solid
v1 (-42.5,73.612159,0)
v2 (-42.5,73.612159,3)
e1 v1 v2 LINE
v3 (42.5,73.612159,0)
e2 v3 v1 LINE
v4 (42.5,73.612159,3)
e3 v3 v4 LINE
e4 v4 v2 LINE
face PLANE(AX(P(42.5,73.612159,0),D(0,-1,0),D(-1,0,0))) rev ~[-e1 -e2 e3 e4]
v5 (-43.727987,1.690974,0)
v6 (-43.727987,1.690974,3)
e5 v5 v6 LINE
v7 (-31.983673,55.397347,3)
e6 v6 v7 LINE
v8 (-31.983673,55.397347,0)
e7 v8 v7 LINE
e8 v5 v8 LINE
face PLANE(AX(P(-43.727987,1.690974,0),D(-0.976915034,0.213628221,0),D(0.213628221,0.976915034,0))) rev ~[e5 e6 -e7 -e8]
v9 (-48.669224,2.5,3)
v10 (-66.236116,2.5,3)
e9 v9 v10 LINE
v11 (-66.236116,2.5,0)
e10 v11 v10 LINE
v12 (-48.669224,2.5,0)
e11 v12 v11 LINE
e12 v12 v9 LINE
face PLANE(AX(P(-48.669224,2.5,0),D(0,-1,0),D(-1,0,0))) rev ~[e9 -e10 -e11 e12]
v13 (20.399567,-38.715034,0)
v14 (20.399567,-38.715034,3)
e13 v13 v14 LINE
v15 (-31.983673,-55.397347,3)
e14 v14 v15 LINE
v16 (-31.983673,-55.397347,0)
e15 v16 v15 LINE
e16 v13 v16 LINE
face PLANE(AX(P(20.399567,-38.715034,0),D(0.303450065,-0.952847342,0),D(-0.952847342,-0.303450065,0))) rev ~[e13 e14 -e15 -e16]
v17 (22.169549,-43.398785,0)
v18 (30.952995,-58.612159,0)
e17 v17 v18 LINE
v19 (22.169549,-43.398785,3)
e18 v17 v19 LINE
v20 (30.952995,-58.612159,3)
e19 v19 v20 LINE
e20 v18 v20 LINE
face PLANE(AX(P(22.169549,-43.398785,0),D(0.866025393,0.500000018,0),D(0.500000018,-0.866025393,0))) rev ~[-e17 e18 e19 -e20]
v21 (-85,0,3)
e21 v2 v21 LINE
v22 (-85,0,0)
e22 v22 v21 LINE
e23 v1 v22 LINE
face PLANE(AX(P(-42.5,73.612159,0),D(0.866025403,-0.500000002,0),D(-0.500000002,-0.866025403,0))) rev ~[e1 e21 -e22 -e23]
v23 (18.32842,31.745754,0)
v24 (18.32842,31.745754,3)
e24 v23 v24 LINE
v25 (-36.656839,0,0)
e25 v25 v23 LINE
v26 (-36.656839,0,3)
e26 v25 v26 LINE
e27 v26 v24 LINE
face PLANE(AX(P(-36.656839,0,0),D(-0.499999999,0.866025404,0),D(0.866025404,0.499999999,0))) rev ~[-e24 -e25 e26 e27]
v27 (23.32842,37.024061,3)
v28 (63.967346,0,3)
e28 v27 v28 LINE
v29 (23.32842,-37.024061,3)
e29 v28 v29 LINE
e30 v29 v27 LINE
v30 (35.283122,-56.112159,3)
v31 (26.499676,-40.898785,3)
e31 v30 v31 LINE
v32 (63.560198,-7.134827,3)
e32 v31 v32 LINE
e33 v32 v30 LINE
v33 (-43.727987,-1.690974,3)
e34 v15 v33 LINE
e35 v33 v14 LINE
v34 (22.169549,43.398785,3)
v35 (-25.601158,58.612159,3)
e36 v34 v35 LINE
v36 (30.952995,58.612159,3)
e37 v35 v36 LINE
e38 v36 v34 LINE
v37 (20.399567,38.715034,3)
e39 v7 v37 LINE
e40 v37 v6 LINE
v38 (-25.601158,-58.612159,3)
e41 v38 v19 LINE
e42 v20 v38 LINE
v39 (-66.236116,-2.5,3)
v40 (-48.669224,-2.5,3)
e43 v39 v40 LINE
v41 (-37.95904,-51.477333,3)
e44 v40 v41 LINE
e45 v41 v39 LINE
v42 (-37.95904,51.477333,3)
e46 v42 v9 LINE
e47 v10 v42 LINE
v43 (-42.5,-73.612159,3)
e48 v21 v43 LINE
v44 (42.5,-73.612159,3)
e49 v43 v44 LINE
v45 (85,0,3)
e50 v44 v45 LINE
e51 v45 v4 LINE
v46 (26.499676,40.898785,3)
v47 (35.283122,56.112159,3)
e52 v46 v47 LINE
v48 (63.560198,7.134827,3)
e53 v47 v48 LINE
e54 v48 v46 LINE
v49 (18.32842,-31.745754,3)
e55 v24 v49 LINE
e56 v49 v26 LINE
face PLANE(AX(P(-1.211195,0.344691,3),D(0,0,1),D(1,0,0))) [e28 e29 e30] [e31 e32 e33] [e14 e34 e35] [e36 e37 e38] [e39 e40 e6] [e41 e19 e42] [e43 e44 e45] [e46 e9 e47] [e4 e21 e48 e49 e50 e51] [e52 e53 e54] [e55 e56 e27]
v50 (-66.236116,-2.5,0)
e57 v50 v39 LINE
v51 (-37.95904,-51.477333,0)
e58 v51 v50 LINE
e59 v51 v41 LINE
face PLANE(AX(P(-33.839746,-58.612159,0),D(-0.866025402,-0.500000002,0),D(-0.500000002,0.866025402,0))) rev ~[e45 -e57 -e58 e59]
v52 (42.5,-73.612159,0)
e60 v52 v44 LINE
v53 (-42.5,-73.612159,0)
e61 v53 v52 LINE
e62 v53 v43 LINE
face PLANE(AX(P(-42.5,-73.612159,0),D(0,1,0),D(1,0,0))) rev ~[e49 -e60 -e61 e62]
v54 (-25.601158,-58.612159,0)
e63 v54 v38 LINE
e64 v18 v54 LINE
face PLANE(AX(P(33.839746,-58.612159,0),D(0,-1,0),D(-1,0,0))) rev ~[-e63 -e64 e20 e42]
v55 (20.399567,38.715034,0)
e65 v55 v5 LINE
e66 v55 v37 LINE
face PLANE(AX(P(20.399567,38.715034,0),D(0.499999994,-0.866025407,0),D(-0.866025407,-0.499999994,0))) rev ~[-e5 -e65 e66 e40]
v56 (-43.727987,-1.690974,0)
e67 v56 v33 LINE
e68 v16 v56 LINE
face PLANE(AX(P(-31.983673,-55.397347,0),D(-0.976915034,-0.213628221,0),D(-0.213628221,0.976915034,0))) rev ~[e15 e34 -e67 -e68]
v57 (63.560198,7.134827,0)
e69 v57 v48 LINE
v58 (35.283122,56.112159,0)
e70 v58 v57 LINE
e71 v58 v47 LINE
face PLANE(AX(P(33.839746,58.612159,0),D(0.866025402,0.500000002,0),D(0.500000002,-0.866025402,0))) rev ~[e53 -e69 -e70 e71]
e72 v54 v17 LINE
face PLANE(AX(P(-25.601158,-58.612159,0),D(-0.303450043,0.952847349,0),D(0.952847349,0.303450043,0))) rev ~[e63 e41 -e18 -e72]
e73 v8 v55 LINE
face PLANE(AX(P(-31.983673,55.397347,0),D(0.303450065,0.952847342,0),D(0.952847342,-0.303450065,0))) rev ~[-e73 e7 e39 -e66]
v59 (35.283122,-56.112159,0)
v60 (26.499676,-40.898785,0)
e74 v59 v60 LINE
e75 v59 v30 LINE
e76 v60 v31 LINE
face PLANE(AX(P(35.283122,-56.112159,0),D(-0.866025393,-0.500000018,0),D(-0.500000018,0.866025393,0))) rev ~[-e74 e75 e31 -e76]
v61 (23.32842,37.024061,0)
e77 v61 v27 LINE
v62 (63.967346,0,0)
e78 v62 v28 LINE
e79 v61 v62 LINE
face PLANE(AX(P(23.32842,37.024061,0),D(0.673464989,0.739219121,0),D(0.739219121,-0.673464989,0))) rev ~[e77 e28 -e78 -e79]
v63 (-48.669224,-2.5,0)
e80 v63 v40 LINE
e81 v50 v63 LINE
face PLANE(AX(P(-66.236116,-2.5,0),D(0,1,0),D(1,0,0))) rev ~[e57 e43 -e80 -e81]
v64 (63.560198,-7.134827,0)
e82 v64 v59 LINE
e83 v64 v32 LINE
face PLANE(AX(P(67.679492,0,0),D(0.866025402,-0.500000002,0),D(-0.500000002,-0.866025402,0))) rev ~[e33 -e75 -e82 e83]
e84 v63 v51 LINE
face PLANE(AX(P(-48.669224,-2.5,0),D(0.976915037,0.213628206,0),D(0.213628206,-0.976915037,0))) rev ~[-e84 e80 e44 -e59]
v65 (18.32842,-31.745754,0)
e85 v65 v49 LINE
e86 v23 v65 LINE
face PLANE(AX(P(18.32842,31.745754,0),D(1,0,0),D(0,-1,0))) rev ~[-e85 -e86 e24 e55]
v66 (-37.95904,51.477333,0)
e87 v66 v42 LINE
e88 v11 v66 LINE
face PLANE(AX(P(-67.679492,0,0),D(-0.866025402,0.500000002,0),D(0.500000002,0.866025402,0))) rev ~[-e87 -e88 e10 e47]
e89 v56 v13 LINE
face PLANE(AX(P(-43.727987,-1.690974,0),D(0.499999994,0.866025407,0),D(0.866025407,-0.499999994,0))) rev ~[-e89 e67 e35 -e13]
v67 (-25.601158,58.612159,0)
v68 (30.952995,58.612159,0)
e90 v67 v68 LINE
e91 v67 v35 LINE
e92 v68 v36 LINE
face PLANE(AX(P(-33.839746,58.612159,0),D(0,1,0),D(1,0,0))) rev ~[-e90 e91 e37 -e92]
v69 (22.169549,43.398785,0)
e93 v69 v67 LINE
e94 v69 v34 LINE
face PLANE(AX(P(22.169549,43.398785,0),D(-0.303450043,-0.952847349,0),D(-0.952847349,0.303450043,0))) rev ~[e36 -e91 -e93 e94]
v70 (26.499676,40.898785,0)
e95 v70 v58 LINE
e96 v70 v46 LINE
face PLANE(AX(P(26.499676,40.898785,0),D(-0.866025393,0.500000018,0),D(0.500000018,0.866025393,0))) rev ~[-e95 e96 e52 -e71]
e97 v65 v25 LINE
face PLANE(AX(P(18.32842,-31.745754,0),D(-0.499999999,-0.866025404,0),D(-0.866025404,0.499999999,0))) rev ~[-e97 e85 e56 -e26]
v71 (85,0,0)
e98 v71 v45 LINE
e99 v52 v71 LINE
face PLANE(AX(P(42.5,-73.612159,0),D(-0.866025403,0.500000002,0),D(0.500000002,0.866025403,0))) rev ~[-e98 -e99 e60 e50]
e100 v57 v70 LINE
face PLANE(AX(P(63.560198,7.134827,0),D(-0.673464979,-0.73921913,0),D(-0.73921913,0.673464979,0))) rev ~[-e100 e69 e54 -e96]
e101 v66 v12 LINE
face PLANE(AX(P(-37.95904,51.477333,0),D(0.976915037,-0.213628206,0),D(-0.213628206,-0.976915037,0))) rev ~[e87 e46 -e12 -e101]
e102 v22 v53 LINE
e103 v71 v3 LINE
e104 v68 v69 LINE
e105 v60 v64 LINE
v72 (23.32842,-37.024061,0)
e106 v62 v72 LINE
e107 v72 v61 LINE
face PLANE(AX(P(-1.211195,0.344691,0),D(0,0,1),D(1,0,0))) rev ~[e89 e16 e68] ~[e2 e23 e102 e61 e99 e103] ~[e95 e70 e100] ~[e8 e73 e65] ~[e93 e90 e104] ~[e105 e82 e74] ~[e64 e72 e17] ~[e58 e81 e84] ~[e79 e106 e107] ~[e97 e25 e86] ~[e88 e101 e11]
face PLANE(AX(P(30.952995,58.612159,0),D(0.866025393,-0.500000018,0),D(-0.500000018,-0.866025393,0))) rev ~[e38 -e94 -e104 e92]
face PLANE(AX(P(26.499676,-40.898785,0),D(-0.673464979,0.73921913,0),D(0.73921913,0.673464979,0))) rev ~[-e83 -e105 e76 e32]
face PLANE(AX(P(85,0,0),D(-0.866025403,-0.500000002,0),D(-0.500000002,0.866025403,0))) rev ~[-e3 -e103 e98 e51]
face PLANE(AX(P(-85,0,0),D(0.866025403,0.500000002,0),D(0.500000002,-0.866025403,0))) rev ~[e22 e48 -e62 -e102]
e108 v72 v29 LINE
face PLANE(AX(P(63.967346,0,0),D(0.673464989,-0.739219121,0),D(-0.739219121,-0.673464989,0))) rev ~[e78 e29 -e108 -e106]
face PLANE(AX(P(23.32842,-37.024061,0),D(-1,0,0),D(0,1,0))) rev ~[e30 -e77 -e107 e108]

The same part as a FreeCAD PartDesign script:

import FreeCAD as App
import Part
import Sketcher
Q = App.Units.Quantity

doc = App.newDocument("Part")
params = doc.addObject("Spreadsheet::Sheet", "Params")
for row, (alias, value) in enumerate([
    ("sketch1_width", "85 mm"),
    ("sketch1_length", "85 mm"),
    ("pad1_length", "3 mm"),
    ("pad2_length", "3 mm"),
], start=1):
    params.set(f"A{row}", alias)
    params.set(f"B{row}", "=" + value)
    params.setAlias(f"B{row}", alias)

body = doc.addObject("PartDesign::Body", "Body")

sketch1 = body.newObject("Sketcher::SketchObject", "Sketch")
sketch1.AttachmentSupport = (doc.getObject("XY_Plane"), [""])
sketch1.MapMode = "FlatFace"
sketch1.addGeometry(Part.LineSegment(App.Vector(85, 0, 0), App.Vector(42, 74, 0)), False)
sketch1.addGeometry(Part.LineSegment(App.Vector(42, 74, 0), App.Vector(-42, 74, 0)), False)
sketch1.addGeometry(Part.LineSegment(App.Vector(-42, 74, 0), App.Vector(-85, 0, 0)), False)
sketch1.addGeometry(Part.LineSegment(App.Vector(-85, 0, 0), App.Vector(-42, -74, 0)), False)
sketch1.addGeometry(Part.LineSegment(App.Vector(-42, -74, 0), App.Vector(42, -74, 0)), False)
sketch1.addGeometry(Part.LineSegment(App.Vector(42, -74, 0), App.Vector(85, 0, 0)), False)
sketch1.addGeometry(Part.LineSegment(App.Vector(-68, 0, 0), App.Vector(-34, 59, 0)), False)
sketch1.addGeometry(Part.LineSegment(App.Vector(-34, 59, 0), App.Vector(34, 59, 0)), False)
sketch1.addGeometry(Part.LineSegment(App.Vector(34, 59, 0), App.Vector(68, 0, 0)), False)
sketch1.addGeometry(Part.LineSegment(App.Vector(68, 0, 0), App.Vector(34, -59, 0)), False)
sketch1.addGeometry(Part.LineSegment(App.Vector(34, -59, 0), App.Vector(-34, -59, 0)), False)
sketch1.addGeometry(Part.LineSegment(App.Vector(-34, -59, 0), App.Vector(-68, 0, 0)), False)
sketch1.addConstraint(Sketcher.Constraint("Coincident", 0, 2, 1, 1))
sketch1.addConstraint(Sketcher.Constraint("Coincident", 1, 2, 2, 1))
sketch1.addConstraint(Sketcher.Constraint("Coincident", 2, 2, 3, 1))
sketch1.addConstraint(Sketcher.Constraint("Coincident", 3, 2, 4, 1))
sketch1.addConstraint(Sketcher.Constraint("Coincident", 4, 2, 5, 1))
sketch1.addConstraint(Sketcher.Constraint("Coincident", 5, 2, 0, 1))
sketch1.addConstraint(Sketcher.Constraint("Coincident", 6, 2, 7, 1))
sketch1.addConstraint(Sketcher.Constraint("Coincident", 7, 2, 8, 1))
sketch1.addConstraint(Sketcher.Constraint("Coincident", 8, 2, 9, 1))
sketch1.addConstraint(Sketcher.Constraint("Coincident", 9, 2, 10, 1))
sketch1.addConstraint(Sketcher.Constraint("Coincident", 10, 2, 11, 1))
sketch1.addConstraint(Sketcher.Constraint("Coincident", 11, 2, 6, 1))
sketch1.addConstraint(Sketcher.Constraint("Horizontal", 1))
sketch1.addConstraint(Sketcher.Constraint("Horizontal", 4))
sketch1.addConstraint(Sketcher.Constraint("Horizontal", 7))
sketch1.addConstraint(Sketcher.Constraint("Horizontal", 10))
sketch1.addConstraint(Sketcher.Constraint("Symmetric", 0, 2, 3, 2, -1, 1))
sketch1.addConstraint(Sketcher.Constraint("Symmetric", 2, 2, 5, 2, -1, 1))
sketch1.addConstraint(Sketcher.Constraint("Symmetric", 6, 2, 9, 2, -1, 1))
sketch1.addConstraint(Sketcher.Constraint("Symmetric", 8, 2, 11, 2, -1, 1))
sketch1.addConstraint(Sketcher.Constraint("PointOnObject", 2, 2, -1))
sketch1.addConstraint(Sketcher.Constraint("PointOnObject", 8, 2, -1))
sketch1.addConstraint(Sketcher.Constraint("Parallel", 2, 5))
sketch1.addConstraint(Sketcher.Constraint("Parallel", 5, 6))
sketch1.addConstraint(Sketcher.Constraint("Parallel", 3, 8))
sketch1.addConstraint(Sketcher.Constraint("Parallel", 8, 11))
sketch1.addConstraint(Sketcher.Constraint("Vertical", 1, 2, 3, 2))
sketch1.addConstraint(Sketcher.Constraint("DistanceX", 1, 2, 1, 1, Q("85 mm")))
sketch1.addConstraint(Sketcher.Constraint("Angle", 0, Q("120 deg")))
sketch1.addConstraint(Sketcher.Constraint("Distance", 0, Q("85 mm")))
sketch1.addConstraint(Sketcher.Constraint("DistanceY", 6, 2, 1, 2, Q("15 mm")))
sketch1.addConstraint(Sketcher.Constraint("DistanceX", 7, 1, 7, 2, Q("67.679492 mm")))
sketch1.setExpression("Constraints[27]", "Params.sketch1_width")
sketch1.setExpression("Constraints[29]", "Params.sketch1_length")
pad1 = body.newObject("PartDesign::Pad", "Pad")
pad1.Profile = sketch1
pad1.setExpression("Length", "Params.pad1_length")

sketch2 = body.newObject("Sketcher::SketchObject", "Sketch001")
sketch2.AttachmentSupport = (doc.getObject("XY_Plane"), [""])
sketch2.MapMode = "FlatFace"
sketch2.addGeometry(Part.LineSegment(App.Vector(31, 58.6, 0), App.Vector(22.2, 43.4, 0)), False)
sketch2.addGeometry(Part.LineSegment(App.Vector(22.2, 43.4, 0), App.Vector(-25.6, 58.6, 0)), False)
sketch2.addGeometry(Part.LineSegment(App.Vector(-25.6, 58.6, 0), App.Vector(-37, 64.1, 0)), False)
sketch2.addGeometry(Part.LineSegment(App.Vector(-37, 64.1, 0), App.Vector(-38, 51.5, 0)), False)
sketch2.addGeometry(Part.LineSegment(App.Vector(-38, 51.5, 0), App.Vector(-48.7, 2.5, 0)), False)
sketch2.addGeometry(Part.LineSegment(App.Vector(-48.7, 2.5, 0), App.Vector(-66.2, 2.5, 0)), False)
sketch2.addGeometry(Part.LineSegment(App.Vector(-66.2, 2.5, 0), App.Vector(-72.5, 1.4, 0)), False)
sketch2.addGeometry(Part.LineSegment(App.Vector(-72.5, 1.4, 0), App.Vector(-66.2, -2.5, 0)), False)
sketch2.addGeometry(Part.LineSegment(App.Vector(-66.2, -2.5, 0), App.Vector(-48.7, -2.5, 0)), False)
sketch2.addGeometry(Part.LineSegment(App.Vector(-48.7, -2.5, 0), App.Vector(-38, -51.5, 0)), False)
sketch2.addGeometry(Part.LineSegment(App.Vector(-38, -51.5, 0), App.Vector(-37.9, -64.2, 0)), False)
sketch2.addGeometry(Part.LineSegment(App.Vector(-37.9, -64.2, 0), App.Vector(-25.6, -58.6, 0)), False)
sketch2.addGeometry(Part.LineSegment(App.Vector(-25.6, -58.6, 0), App.Vector(22.2, -43.4, 0)), False)
sketch2.addGeometry(Part.LineSegment(App.Vector(22.2, -43.4, 0), App.Vector(31, -58.6, 0)), False)
sketch2.addGeometry(Part.LineSegment(App.Vector(31, -58.6, 0), App.Vector(34.2, -60.3, 0)), False)
sketch2.addGeometry(Part.LineSegment(App.Vector(34.2, -60.3, 0), App.Vector(35.3, -56.1, 0)), False)
sketch2.addGeometry(Part.LineSegment(App.Vector(35.3, -56.1, 0), App.Vector(26.5, -40.9, 0)), False)
sketch2.addGeometry(Part.LineSegment(App.Vector(26.5, -40.9, 0), App.Vector(63.6, -7.1, 0)), False)
sketch2.addGeometry(Part.LineSegment(App.Vector(63.6, -7.1, 0), App.Vector(71.4, 0, 0)), False)
sketch2.addGeometry(Part.LineSegment(App.Vector(71.4, 0, 0), App.Vector(63.6, 7.1, 0)), False)
sketch2.addGeometry(Part.LineSegment(App.Vector(63.6, 7.1, 0), App.Vector(26.5, 40.9, 0)), False)
sketch2.addGeometry(Part.LineSegment(App.Vector(26.5, 40.9, 0), App.Vector(35.3, 56.1, 0)), False)
sketch2.addGeometry(Part.LineSegment(App.Vector(35.3, 56.1, 0), App.Vector(37.1, 58.6, 0)), False)
sketch2.addGeometry(Part.LineSegment(App.Vector(37.1, 58.6, 0), App.Vector(32.1, 61.4, 0)), False)
sketch2.addGeometry(Part.LineSegment(App.Vector(32.1, 61.4, 0), App.Vector(31, 58.6, 0)), False)
sketch2.addGeometry(Part.LineSegment(App.Vector(-32, -55.4, 0), App.Vector(-43.7, -1.7, 0)), False)
sketch2.addGeometry(Part.LineSegment(App.Vector(-43.7, -1.7, 0), App.Vector(20.4, -38.7, 0)), False)
sketch2.addGeometry(Part.LineSegment(App.Vector(20.4, -38.7, 0), App.Vector(-32, -55.4, 0)), False)
sketch2.addGeometry(Part.LineSegment(App.Vector(18.3, -31.7, 0), App.Vector(-36.7, 0, 0)), False)
sketch2.addGeometry(Part.LineSegment(App.Vector(-36.7, 0, 0), App.Vector(18.3, 31.7, 0)), False)
sketch2.addGeometry(Part.LineSegment(App.Vector(18.3, 31.7, 0), App.Vector(18.3, -31.7, 0)), False)
sketch2.addGeometry(Part.LineSegment(App.Vector(64, 0, 0), App.Vector(23.3, -37, 0)), False)
sketch2.addGeometry(Part.LineSegment(App.Vector(23.3, -37, 0), App.Vector(23.3, 37, 0)), False)
sketch2.addGeometry(Part.LineSegment(App.Vector(23.3, 37, 0), App.Vector(64, 0, 0)), False)
sketch2.addGeometry(Part.LineSegment(App.Vector(-32, 55.4, 0), App.Vector(20.4, 38.7, 0)), False)
sketch2.addGeometry(Part.LineSegment(App.Vector(20.4, 38.7, 0), App.Vector(-43.7, 1.7, 0)), False)
sketch2.addGeometry(Part.LineSegment(App.Vector(-43.7, 1.7, 0), App.Vector(-32, 55.4, 0)), False)
sketch2.addConstraint(Sketcher.Constraint("Coincident", 0, 2, 1, 1))
sketch2.addConstraint(Sketcher.Constraint("Coincident", 1, 2, 2, 1))
sketch2.addConstraint(Sketcher.Constraint("Coincident", 2, 2, 3, 1))
sketch2.addConstraint(Sketcher.Constraint("Coincident", 3, 2, 4, 1))
sketch2.addConstraint(Sketcher.Constraint("Coincident", 4, 2, 5, 1))
sketch2.addConstraint(Sketcher.Constraint("Coincident", 5, 2, 6, 1))
sketch2.addConstraint(Sketcher.Constraint("Coincident", 6, 2, 7, 1))
sketch2.addConstraint(Sketcher.Constraint("Coincident", 7, 2, 8, 1))
sketch2.addConstraint(Sketcher.Constraint("Coincident", 8, 2, 9, 1))
sketch2.addConstraint(Sketcher.Constraint("Coincident", 9, 2, 10, 1))
sketch2.addConstraint(Sketcher.Constraint("Coincident", 10, 2, 11, 1))
sketch2.addConstraint(Sketcher.Constraint("Coincident", 11, 2, 12, 1))
sketch2.addConstraint(Sketcher.Constraint("Coincident", 12, 2, 13, 1))
sketch2.addConstraint(Sketcher.Constraint("Coincident", 13, 2, 14, 1))
sketch2.addConstraint(Sketcher.Constraint("Coincident", 14, 2, 15, 1))
sketch2.addConstraint(Sketcher.Constraint("Coincident", 15, 2, 16, 1))
sketch2.addConstraint(Sketcher.Constraint("Coincident", 16, 2, 17, 1))
sketch2.addConstraint(Sketcher.Constraint("Coincident", 17, 2, 18, 1))
sketch2.addConstraint(Sketcher.Constraint("Coincident", 18, 2, 19, 1))
sketch2.addConstraint(Sketcher.Constraint("Coincident", 19, 2, 20, 1))
sketch2.addConstraint(Sketcher.Constraint("Coincident", 20, 2, 21, 1))
sketch2.addConstraint(Sketcher.Constraint("Coincident", 21, 2, 22, 1))
sketch2.addConstraint(Sketcher.Constraint("Coincident", 22, 2, 23, 1))
sketch2.addConstraint(Sketcher.Constraint("Coincident", 23, 2, 24, 1))
sketch2.addConstraint(Sketcher.Constraint("Coincident", 24, 2, 0, 1))
sketch2.addConstraint(Sketcher.Constraint("Coincident", 25, 2, 26, 1))
sketch2.addConstraint(Sketcher.Constraint("Coincident", 26, 2, 27, 1))
sketch2.addConstraint(Sketcher.Constraint("Coincident", 27, 2, 25, 1))
sketch2.addConstraint(Sketcher.Constraint("Coincident", 28, 2, 29, 1))
sketch2.addConstraint(Sketcher.Constraint("Coincident", 29, 2, 30, 1))
sketch2.addConstraint(Sketcher.Constraint("Coincident", 30, 2, 28, 1))
sketch2.addConstraint(Sketcher.Constraint("Coincident", 31, 2, 32, 1))
sketch2.addConstraint(Sketcher.Constraint("Coincident", 32, 2, 33, 1))
sketch2.addConstraint(Sketcher.Constraint("Coincident", 33, 2, 31, 1))
sketch2.addConstraint(Sketcher.Constraint("Coincident", 34, 2, 35, 1))
sketch2.addConstraint(Sketcher.Constraint("Coincident", 35, 2, 36, 1))
sketch2.addConstraint(Sketcher.Constraint("Coincident", 36, 2, 34, 1))
sketch2.addConstraint(Sketcher.Constraint("Horizontal", 5))
sketch2.addConstraint(Sketcher.Constraint("Horizontal", 8))
sketch2.addConstraint(Sketcher.Constraint("Vertical", 30))
sketch2.addConstraint(Sketcher.Constraint("Vertical", 32))
sketch2.addConstraint(Sketcher.Constraint("Symmetric", 5, 2, 7, 2, -1))
sketch2.addConstraint(Sketcher.Constraint("Symmetric", 3, 2, 9, 2, -1))
sketch2.addConstraint(Sketcher.Constraint("Symmetric", 1, 2, 11, 2, -1))
sketch2.addConstraint(Sketcher.Constraint("Symmetric", 0, 2, 12, 2, -1))
sketch2.addConstraint(Sketcher.Constraint("Symmetric", 17, 2, 19, 2, -1))
sketch2.addConstraint(Sketcher.Constraint("Symmetric", 16, 2, 20, 2, -1))
sketch2.addConstraint(Sketcher.Constraint("Symmetric", 15, 2, 21, 2, -1))
sketch2.addConstraint(Sketcher.Constraint("Symmetric", 13, 2, 24, 2, -1))
sketch2.addConstraint(Sketcher.Constraint("Symmetric", 26, 2, 34, 2, -1))
sketch2.addConstraint(Sketcher.Constraint("Symmetric", 25, 2, 35, 2, -1))
sketch2.addConstraint(Sketcher.Constraint("Symmetric", 27, 2, 36, 2, -1))
sketch2.addConstraint(Sketcher.Constraint("PointOnObject", 18, 2, -1))
sketch2.addConstraint(Sketcher.Constraint("PointOnObject", 28, 2, -1))
sketch2.addConstraint(Sketcher.Constraint("PointOnObject", 33, 2, -1))
sketch2.addConstraint(Sketcher.Constraint("Parallel", 13, 16))
sketch2.addConstraint(Sketcher.Constraint("Parallel", 17, 18))
sketch2.addConstraint(Sketcher.Constraint("Parallel", 9, 25))
sketch2.addConstraint(Sketcher.Constraint("Perpendicular", 21, 26))
sketch2.addConstraint(Sketcher.Constraint("Parallel", 12, 27))
sketch2.addConstraint(Sketcher.Constraint("Parallel", 26, 28))
sketch2.addConstraint(Sketcher.Constraint("Perpendicular", 16, 29))
sketch2.addConstraint(Sketcher.Constraint("Parallel", 18, 31))
sketch2.addConstraint(Sketcher.Constraint("Parallel", 20, 33))
sketch2.addConstraint(Sketcher.Constraint("Parallel", 4, 36))
sketch2.addConstraint(Sketcher.Constraint("Horizontal", 11, 2, 13, 2))
sketch2.addConstraint(Sketcher.Constraint("Horizontal", 1, 2, 22, 2))
sketch2.addConstraint(Sketcher.Constraint("Equal", 1, 4))
sketch2.addConstraint(Sketcher.Constraint("Equal", 13, 16))
sketch2.addConstraint(Sketcher.Constraint("Equal", 12, 17))
sketch2.addConstraint(Sketcher.Constraint("Equal", 25, 27))
sketch2.addConstraint(Sketcher.Constraint("Equal", 27, 31))
sketch2.addConstraint(Sketcher.Constraint("Angle", 0, Q("-120.000001 deg")))
sketch2.addConstraint(Sketcher.Constraint("DistanceY", 7, 2, 5, 2, Q("5 mm")))
sketch2.addConstraint(Sketcher.Constraint("DistanceX", 30, 2, 31, 2, Q("5 mm")))
sketch2.addConstraint(Sketcher.Constraint("DistanceY", 13, 2, 15, 2, Q("2.5 mm")))
sketch2.addConstraint(Sketcher.Constraint("DistanceX", 10, 2, 14, 2, Q("72.083998 mm")))
sketch2.addConstraint(Sketcher.Constraint("Distance", 10, Q("12.707801 mm")))
sketch2.addConstraint(Sketcher.Constraint("DistanceX", 5, 2, 5, 1, Q("17.566892 mm")))
sketch2.addConstraint(Sketcher.Constraint("DistanceY", 30, 2, 30, 1, Q("63.491508 mm")))
sketch2.addConstraint(Sketcher.Constraint("DistanceX", 2, 2, 1, 2, Q("11.384202 mm")))
sketch2.addConstraint(Sketcher.Constraint("DistanceY", 9, 2, 6, 2, Q("52.914702 mm")))
sketch2.addConstraint(Sketcher.Constraint("DistanceX", 8, 2, 10, 2, Q("10.808298 mm")))
sketch2.addConstraint(Sketcher.Constraint("DistanceX", 29, 2, 21, 2, Q("16.954702 mm")))
sketch2.addConstraint(Sketcher.Constraint("Distance", 0, Q("17.566891 mm")))
sketch2.addConstraint(Sketcher.Constraint("Distance", 1, Q("50.134691 mm")))
sketch2.addConstraint(Sketcher.Constraint("Distance", 3, Q("12.634459 mm")))
sketch2.addConstraint(Sketcher.Constraint("Distance", 6, Q("6.314941 mm")))
sketch2.addConstraint(Sketcher.Constraint("Distance", 11, Q("13.466838 mm")))
sketch2.addConstraint(Sketcher.Constraint("Distance", 14, Q("3.70241 mm")))
sketch2.addConstraint(Sketcher.Constraint("Distance", 15, Q("4.366831 mm")))
sketch2.addConstraint(Sketcher.Constraint("Distance", 24, Q("3.036009 mm")))
sketch2.addConstraint(Sketcher.Constraint("Distance", 25, Q("54.97548 mm")))
sketch2.addConstraint(Sketcher.Constraint("DistanceY", 32, 1, 32, 2, Q("74.048122 mm")))
sketch2.addConstraint(Sketcher.Constraint("DistanceX", -1, 1, 0, 2, Q("22.169549 mm")))
sketch2.addConstraint(Sketcher.Constraint("DistanceY", -1, 1, 1, 2, Q("58.612159 mm")))
sketch2.addConstraint(Sketcher.Constraint("DistanceX", -1, 1, 22, 2, Q("37.067572 mm")))
sketch2.addConstraint(Sketcher.Constraint("DistanceX", 0, 2, 23, 2, Q("9.947889 mm")))
sketch2.addConstraint(Sketcher.Constraint("DistanceX", 7, 2, 25, 2, Q("22.508129 mm")))
sketch2.addConstraint(Sketcher.Constraint("DistanceY", 12, 2, 26, 2, Q("4.683751 mm")))
pad2 = body.newObject("PartDesign::Pad", "Pad001")
pad2.Profile = sketch2
pad2.setExpression("Length", "Params.pad2_length")

doc.recompute()
